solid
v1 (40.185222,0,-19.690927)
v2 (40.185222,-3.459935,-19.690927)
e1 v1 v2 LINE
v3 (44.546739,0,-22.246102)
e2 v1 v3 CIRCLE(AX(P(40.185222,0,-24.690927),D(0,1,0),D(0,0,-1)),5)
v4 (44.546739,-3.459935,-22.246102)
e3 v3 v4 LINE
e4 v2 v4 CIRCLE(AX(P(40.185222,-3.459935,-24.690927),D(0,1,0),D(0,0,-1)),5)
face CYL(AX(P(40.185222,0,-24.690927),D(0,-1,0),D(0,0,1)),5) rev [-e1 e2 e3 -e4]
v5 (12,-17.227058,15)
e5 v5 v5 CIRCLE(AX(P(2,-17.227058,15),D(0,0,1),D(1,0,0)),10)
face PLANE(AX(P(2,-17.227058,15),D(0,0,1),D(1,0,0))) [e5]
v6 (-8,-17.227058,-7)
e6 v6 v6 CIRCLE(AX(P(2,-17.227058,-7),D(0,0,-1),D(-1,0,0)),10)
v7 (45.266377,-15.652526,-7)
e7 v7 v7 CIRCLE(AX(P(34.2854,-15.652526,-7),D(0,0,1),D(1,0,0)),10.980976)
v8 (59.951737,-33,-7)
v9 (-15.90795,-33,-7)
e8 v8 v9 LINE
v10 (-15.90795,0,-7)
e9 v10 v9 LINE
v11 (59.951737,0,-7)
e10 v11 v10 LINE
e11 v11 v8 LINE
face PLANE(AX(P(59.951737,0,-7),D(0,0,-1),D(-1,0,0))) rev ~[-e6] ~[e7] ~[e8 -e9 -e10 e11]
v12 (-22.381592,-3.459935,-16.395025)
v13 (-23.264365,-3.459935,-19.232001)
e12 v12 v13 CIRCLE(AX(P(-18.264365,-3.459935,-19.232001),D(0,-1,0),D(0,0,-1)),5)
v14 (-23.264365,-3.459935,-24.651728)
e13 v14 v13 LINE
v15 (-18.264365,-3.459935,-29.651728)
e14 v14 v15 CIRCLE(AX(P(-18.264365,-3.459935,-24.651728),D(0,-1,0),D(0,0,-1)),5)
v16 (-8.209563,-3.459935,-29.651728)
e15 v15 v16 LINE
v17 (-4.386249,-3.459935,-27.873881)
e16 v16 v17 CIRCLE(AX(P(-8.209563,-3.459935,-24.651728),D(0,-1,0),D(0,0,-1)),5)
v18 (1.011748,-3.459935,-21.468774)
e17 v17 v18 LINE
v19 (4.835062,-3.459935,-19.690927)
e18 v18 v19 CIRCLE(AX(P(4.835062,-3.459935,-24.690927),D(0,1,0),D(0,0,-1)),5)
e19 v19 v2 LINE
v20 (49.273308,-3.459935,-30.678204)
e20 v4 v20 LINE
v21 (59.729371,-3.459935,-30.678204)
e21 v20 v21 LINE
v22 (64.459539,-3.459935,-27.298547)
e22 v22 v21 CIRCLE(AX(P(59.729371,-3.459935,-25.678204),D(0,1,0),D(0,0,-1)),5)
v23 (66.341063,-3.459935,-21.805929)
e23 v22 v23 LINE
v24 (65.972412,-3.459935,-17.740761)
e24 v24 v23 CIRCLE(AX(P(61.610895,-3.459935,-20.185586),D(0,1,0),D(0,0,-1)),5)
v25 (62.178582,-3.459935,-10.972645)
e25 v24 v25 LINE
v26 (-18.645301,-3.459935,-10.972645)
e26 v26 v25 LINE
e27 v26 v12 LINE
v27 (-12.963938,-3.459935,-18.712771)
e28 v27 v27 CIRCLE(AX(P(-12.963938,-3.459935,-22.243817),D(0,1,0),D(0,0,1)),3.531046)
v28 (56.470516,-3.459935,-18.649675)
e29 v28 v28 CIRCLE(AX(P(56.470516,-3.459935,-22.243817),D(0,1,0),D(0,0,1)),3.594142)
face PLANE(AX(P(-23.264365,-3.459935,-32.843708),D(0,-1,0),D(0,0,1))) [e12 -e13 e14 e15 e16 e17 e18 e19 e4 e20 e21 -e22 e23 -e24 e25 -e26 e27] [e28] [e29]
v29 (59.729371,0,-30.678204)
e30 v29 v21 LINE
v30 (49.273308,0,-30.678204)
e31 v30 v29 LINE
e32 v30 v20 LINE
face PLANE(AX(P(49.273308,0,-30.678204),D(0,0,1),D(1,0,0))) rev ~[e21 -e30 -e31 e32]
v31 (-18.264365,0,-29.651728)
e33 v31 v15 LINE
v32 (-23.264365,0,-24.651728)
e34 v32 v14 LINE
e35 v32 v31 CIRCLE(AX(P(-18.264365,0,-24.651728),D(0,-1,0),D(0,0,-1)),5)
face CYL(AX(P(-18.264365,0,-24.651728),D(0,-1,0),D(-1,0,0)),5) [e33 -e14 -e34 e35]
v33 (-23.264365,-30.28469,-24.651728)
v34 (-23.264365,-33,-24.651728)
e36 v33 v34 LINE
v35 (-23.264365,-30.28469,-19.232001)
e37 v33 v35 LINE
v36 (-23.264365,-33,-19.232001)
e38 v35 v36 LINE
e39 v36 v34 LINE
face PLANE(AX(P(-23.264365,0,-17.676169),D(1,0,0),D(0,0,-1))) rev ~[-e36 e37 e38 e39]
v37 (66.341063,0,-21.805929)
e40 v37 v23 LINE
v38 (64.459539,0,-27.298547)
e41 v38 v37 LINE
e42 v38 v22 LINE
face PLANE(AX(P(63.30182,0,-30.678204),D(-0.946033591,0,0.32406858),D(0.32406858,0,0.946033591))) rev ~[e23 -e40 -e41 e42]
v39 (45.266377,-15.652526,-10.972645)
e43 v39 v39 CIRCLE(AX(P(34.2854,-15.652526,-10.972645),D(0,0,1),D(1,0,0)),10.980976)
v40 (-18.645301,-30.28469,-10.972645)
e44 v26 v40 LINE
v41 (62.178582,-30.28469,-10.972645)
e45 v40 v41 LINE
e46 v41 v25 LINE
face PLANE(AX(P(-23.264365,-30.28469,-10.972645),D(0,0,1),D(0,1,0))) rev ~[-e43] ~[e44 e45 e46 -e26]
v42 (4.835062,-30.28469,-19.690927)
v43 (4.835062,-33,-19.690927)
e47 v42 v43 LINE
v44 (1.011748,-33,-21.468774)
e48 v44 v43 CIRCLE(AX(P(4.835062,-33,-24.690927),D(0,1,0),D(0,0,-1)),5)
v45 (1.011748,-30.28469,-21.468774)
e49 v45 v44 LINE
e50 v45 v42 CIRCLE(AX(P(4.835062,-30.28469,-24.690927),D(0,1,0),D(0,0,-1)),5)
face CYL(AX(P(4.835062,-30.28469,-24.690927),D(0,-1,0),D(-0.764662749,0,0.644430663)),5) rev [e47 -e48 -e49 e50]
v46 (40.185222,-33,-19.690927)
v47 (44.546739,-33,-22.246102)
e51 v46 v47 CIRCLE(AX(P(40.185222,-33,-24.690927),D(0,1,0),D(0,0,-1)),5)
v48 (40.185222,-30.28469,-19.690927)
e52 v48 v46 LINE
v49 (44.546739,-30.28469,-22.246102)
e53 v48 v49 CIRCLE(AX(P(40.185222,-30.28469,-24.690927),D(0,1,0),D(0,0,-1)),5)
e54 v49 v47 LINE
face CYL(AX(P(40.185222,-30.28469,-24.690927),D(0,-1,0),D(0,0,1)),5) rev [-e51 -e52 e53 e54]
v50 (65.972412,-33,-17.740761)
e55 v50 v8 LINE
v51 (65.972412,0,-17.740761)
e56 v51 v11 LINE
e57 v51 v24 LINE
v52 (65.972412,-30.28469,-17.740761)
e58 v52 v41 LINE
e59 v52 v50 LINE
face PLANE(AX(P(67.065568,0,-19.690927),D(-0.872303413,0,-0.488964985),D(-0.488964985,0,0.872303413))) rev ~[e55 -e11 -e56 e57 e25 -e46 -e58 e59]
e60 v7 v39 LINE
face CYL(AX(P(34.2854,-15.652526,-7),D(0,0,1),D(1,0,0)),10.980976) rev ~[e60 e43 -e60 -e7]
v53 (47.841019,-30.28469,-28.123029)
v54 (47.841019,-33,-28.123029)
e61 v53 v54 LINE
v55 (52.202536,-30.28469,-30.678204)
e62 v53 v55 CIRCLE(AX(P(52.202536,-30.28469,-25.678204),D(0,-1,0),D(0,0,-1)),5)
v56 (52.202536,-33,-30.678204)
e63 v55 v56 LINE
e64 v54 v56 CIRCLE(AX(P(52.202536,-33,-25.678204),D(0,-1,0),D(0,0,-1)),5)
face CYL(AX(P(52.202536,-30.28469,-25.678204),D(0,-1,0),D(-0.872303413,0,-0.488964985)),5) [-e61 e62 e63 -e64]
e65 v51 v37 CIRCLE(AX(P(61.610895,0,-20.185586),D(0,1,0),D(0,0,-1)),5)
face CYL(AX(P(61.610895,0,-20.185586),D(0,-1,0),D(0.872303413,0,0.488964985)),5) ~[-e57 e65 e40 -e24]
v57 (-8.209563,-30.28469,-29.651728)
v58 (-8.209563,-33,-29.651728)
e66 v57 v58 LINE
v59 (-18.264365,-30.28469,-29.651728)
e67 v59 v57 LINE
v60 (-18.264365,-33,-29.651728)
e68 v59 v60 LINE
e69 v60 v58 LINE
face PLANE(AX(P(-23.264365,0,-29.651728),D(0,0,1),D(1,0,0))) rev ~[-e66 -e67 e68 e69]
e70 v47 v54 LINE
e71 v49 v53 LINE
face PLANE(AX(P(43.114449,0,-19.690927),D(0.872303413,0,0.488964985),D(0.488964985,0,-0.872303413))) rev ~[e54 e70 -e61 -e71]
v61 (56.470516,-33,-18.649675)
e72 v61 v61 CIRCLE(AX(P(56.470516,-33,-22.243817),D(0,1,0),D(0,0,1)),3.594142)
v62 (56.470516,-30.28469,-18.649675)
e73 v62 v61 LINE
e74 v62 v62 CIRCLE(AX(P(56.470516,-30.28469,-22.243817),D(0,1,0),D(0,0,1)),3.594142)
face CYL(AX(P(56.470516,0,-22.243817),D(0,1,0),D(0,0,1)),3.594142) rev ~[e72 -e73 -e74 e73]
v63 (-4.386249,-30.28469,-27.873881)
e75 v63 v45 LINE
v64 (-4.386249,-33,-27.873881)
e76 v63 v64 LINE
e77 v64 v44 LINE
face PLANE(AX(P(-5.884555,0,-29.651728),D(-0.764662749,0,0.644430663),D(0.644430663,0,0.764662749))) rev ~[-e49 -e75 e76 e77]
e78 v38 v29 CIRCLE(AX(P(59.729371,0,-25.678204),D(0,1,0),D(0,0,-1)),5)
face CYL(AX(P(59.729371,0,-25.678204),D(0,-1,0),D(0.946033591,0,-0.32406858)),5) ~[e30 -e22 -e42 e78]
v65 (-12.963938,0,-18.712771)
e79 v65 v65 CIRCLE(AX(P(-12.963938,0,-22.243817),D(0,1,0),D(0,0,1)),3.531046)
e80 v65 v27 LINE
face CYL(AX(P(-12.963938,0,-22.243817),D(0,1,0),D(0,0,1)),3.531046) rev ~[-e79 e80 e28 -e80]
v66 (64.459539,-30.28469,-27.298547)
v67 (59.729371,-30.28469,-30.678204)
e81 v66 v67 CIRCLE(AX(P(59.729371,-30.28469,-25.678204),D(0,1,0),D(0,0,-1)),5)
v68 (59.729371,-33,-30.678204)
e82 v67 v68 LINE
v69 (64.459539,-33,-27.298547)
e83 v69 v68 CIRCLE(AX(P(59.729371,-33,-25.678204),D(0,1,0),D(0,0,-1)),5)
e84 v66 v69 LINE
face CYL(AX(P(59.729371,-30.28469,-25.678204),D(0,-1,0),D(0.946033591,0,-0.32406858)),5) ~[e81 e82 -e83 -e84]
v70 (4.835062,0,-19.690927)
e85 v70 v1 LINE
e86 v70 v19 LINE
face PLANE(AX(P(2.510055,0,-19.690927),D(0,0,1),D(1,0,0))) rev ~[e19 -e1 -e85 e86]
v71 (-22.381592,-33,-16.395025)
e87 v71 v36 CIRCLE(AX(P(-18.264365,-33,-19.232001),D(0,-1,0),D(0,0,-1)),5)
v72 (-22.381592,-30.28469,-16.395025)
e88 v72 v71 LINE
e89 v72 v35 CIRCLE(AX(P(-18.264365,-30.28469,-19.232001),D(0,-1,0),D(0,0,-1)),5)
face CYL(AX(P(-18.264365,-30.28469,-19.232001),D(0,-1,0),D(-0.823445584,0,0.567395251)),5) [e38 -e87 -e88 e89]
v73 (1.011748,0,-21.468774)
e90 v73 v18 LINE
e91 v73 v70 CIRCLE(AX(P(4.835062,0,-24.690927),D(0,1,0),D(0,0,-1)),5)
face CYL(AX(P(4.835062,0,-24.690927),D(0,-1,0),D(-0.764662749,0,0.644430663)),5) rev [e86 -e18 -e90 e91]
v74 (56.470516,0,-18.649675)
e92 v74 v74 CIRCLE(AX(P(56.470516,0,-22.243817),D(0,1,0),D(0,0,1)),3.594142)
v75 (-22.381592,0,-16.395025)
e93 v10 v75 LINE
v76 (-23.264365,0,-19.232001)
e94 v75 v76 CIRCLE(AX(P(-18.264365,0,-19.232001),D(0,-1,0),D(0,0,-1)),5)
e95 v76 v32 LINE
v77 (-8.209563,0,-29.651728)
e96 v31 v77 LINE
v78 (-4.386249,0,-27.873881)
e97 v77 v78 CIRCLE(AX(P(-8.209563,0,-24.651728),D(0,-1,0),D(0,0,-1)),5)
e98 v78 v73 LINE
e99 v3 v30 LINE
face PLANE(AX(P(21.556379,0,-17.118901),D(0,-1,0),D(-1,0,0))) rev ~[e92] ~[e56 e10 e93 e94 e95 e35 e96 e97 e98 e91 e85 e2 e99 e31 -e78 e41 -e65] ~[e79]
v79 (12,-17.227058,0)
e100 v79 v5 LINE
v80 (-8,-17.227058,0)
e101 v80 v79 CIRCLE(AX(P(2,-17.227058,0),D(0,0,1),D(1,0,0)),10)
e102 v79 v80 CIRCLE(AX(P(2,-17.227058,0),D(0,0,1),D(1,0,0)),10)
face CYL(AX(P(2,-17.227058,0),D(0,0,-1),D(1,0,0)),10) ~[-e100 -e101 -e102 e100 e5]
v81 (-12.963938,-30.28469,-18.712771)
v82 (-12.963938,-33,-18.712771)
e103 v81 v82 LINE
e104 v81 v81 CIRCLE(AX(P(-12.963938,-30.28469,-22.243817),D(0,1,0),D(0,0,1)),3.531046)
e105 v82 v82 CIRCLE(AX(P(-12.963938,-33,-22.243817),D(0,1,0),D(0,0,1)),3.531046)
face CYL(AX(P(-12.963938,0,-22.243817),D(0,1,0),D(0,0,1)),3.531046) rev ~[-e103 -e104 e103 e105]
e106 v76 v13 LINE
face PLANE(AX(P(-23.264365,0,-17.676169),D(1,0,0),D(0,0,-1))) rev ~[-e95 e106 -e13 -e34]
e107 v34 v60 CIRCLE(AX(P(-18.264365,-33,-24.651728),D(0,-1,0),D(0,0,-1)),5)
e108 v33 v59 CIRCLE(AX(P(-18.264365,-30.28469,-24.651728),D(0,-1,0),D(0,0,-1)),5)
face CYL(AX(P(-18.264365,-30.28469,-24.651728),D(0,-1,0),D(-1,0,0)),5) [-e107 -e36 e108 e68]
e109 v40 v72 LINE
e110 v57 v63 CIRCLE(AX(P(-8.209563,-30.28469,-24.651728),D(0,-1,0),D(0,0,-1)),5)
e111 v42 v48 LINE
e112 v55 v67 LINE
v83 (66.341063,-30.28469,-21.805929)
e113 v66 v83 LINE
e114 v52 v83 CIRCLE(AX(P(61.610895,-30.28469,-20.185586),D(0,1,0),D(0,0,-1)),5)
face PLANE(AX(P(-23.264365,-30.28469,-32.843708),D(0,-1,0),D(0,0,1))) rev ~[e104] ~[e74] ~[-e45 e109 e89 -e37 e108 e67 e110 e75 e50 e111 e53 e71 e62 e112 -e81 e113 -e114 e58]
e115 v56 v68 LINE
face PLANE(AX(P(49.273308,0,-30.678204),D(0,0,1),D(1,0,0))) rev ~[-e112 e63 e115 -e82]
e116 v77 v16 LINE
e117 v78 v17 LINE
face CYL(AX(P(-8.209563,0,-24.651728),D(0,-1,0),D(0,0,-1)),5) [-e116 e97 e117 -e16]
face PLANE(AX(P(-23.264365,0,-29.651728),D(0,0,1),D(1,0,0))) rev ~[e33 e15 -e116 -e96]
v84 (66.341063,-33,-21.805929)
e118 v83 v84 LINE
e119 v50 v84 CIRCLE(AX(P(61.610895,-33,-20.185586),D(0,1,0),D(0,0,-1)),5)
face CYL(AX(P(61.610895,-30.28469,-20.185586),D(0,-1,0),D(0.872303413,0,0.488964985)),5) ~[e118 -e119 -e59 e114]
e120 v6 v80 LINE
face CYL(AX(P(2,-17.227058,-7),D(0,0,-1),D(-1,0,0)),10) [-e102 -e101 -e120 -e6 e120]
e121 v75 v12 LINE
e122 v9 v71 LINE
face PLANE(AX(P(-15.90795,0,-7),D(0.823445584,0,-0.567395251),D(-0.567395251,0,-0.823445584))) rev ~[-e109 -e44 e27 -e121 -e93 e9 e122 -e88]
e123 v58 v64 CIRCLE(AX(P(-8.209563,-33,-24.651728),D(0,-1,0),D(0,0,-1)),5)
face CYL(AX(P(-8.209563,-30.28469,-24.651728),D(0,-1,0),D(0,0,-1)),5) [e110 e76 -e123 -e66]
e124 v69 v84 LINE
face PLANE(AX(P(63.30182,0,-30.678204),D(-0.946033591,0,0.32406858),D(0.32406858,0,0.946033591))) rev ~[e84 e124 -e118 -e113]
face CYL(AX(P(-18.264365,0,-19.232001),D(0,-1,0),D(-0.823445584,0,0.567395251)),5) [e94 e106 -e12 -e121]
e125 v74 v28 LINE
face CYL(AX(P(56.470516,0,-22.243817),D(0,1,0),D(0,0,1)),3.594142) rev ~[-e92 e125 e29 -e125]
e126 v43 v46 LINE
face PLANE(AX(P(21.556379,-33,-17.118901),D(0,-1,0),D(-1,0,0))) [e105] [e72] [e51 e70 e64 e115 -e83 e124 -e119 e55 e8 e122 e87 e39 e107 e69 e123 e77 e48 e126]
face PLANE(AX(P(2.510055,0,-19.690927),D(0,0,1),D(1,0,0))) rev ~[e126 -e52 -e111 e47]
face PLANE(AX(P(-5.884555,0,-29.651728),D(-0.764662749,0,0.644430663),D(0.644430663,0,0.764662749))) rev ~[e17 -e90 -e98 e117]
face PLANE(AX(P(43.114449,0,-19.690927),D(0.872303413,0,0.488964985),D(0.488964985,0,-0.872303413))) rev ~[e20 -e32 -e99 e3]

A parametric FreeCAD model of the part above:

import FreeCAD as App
import Part
import Sketcher
Q = App.Units.Quantity


def edges_at(feature, points):
    """Names of the edges that pass closest to the given points."""
    edges = feature.Shape.Edges
    near = lambda p: min(range(len(edges)), key=lambda i: edges[i].distToShape(Part.Vertex(*p))[0])
    return sorted({f"Edge{near(p) + 1}" for p in points})


def add_polygon(sketch, points):
    """Adds a closed chain of lines whose ends are joined by coincident constraints."""
    first, n = sketch.GeometryCount, len(points)
    for a, b in zip(points, points[1:] + points[:1]):
        sketch.addGeometry(Part.LineSegment(App.Vector(*a, 0), App.Vector(*b, 0)), False)
    for i in range(n):
        sketch.addConstraint(Sketcher.Constraint("Coincident", first + i, 2, first + (i + 1) % n, 1))

doc = App.newDocument("Part")
params = doc.addObject("Spreadsheet::Sheet", "Params")
for row, (alias, value) in enumerate([
    ("sketch1_diameter", "20 mm"),
    ("pad1_length", "15 mm"),
    ("sketch2_diameter", "20 mm"),
    ("pad2_length", "7 mm"),
    ("pad3_length", "33 mm"),
    ("fillet_radius", "5 mm"),
], start=1):
    params.set(f"A{row}", alias)
    params.set(f"B{row}", "=" + value)
    params.setAlias(f"B{row}", alias)

body = doc.addObject("PartDesign::Body", "Body")

sketch1 = doc.addObject("Sketcher::SketchObject", "Sketch")
body.addObject(sketch1)
sketch1.AttachmentSupport = (doc.XY_Plane, [""])
sketch1.MapMode = "FlatFace"
sketch1.addGeometry(Part.Circle(App.Vector(2, -17, 0), App.Vector(0, 0, 1), 10), False)
sketch1.addConstraint([
    Sketcher.Constraint("Diameter", 0, Q("20 mm")),
    Sketcher.Constraint("DistanceX", -1, 1, 0, 3, Q("2 mm")),
    Sketcher.Constraint("DistanceY", 0, 3, -1, 1, Q("17.227058 mm")),
])
sketch1.setExpression("Constraints[0]", "Params.sketch1_diameter")
pad1 = doc.addObject("PartDesign::Pad", "Pad")
body.addObject(pad1)
pad1.Profile = sketch1
pad1.setExpression("Length", "Params.pad1_length")

sketch2 = doc.addObject("Sketcher::SketchObject", "Sketch001")
body.addObject(sketch2)
sketch2.AttachmentSupport = (doc.XY_Plane, [""])
sketch2.MapMode = "FlatFace"
sketch2.AttachmentOffset = App.Placement(App.Vector(0, 0, -7), App.Rotation())
sketch2.addGeometry(Part.Circle(App.Vector(2, -17, 0), App.Vector(0, 0, 1), 10), False)
sketch2.addConstraint([
    Sketcher.Constraint("Diameter", 0, Q("20 mm")),
    Sketcher.Constraint("DistanceX", -1, 1, 0, 3, Q("2 mm")),
    Sketcher.Constraint("DistanceY", 0, 3, -1, 1, Q("17.227058 mm")),
])
sketch2.setExpression("Constraints[0]", "Params.sketch2_diameter")
pad2 = doc.addObject("PartDesign::Pad", "Pad001")
body.addObject(pad2)
pad2.Profile = sketch2
pad2.setExpression("Length", "Params.pad2_length")

sketch3 = doc.addObject("Sketcher::SketchObject", "Sketch002")
body.addObject(sketch3)
sketch3.AttachmentSupport = (doc.XZ_Plane, [""])
sketch3.MapMode = "FlatFace"
add_polygon(sketch3, [(-23, -18), (-16, -7), (60, -7), (67, -20), (63, -31), (49, -31), (43, -20), (3, -20), (-6, -30), (-23, -30)])
sketch3.addConstraint([
    Sketcher.Constraint("Horizontal", 1),
    Sketcher.Constraint("Horizontal", 4),
    Sketcher.Constraint("Horizontal", 6),
    Sketcher.Constraint("Horizontal", 8),
    Sketcher.Constraint("Vertical", 9),
    Sketcher.Constraint("Parallel", 2, 5),
    Sketcher.Constraint("Horizontal", 2, 2, 5, 2),
    Sketcher.Constraint("DistanceY", 0, 2, -1, 1, Q("7 mm")),
    Sketcher.Constraint("DistanceX", 8, 2, 8, 1, Q("17.379809 mm")),
    Sketcher.Constraint("DistanceY", 9, 1, 9, 2, Q("11.975559 mm")),
    Sketcher.Constraint("DistanceX", 0, 2, 5, 2, Q("59.022399 mm")),
    Sketcher.Constraint("DistanceY", 7, 2, 6, 2, Q("9.9608 mm")),
    Sketcher.Constraint("Distance", 0, Q("12.965239 mm")),
    Sketcher.Constraint("DistanceX", 1, 1, 1, 2, Q("75.859686 mm")),
    Sketcher.Constraint("DistanceX", 4, 2, 4, 1, Q("14.028512 mm")),
    Sketcher.Constraint("DistanceX", 6, 2, 6, 1, Q("40.604395 mm")),
    Sketcher.Constraint("DistanceX", 0, 2, -1, 1, Q("15.90795 mm")),
    Sketcher.Constraint("DistanceX", -1, 1, 3, 2, Q("63.30182 mm")),
    Sketcher.Constraint("DistanceY", 9, 2, -1, 1, Q("17.676169 mm")),
    Sketcher.Constraint("DistanceX", 1, 2, 2, 2, Q("7.113831 mm")),
])
pad3 = doc.addObject("PartDesign::Pad", "Pad002")
body.addObject(pad3)
pad3.Profile = sketch3
pad3.setExpression("Length", "Params.pad3_length")

sketch4 = doc.addObject("Sketcher::SketchObject", "Sketch003")
body.addObject(sketch4)
sketch4.AttachmentSupport = (doc.YZ_Plane, [""])
sketch4.MapMode = "FlatFace"
sketch4.AttachmentOffset = App.Placement(App.Vector(0, 0, -23.264365), App.Rotation())
add_polygon(sketch4, [(-3, -33), (-30, -33), (-30, -11), (-3, -11)])
sketch4.addConstraint([
    Sketcher.Constraint("Horizontal", 0),
    Sketcher.Constraint("Vertical", 1),
    Sketcher.Constraint("Horizontal", 2),
    Sketcher.Constraint("Vertical", 3),
    Sketcher.Constraint("DistanceX", 0, 2, 0, 1, Q("26.824754 mm")),
    Sketcher.Constraint("DistanceY", 1, 1, 1, 2, Q("21.871063 mm")),
    Sketcher.Constraint("DistanceX", 0, 2, -1, 1, Q("30.28469 mm")),
    Sketcher.Constraint("DistanceY", 0, 2, -1, 1, Q("32.843708 mm")),
])
pocket1 = doc.addObject("PartDesign::Pocket", "Pocket")
body.addObject(pocket1)
pocket1.Profile = sketch4
pocket1.Type = "ThroughAll"
pocket1.Reversed = True

sketch5 = doc.addObject("Sketcher::SketchObject", "Sketch004")
body.addObject(sketch5)
sketch5.AttachmentSupport = (doc.XZ_Plane, [""])
sketch5.MapMode = "FlatFace"
sketch5.addGeometry([
    Part.Circle(App.Vector(-13, -22.2, 0), App.Vector(0, 0, 1), 3.5),
    Part.Circle(App.Vector(56.5, -22.2, 0), App.Vector(0, 0, 1), 3.6),
], False)
sketch5.addConstraint([
    Sketcher.Constraint("Horizontal", 0, 3, 1, 3),
    Sketcher.Constraint("Diameter", 0, Q("7.062092 mm")),
    Sketcher.Constraint("Diameter", 1, Q("7.188285 mm")),
    Sketcher.Constraint("DistanceX", 0, 3, -1, 1, Q("12.963938 mm")),
    Sketcher.Constraint("DistanceY", 0, 3, -1, 1, Q("22.243817 mm")),
    Sketcher.Constraint("DistanceX", -1, 1, 1, 3, Q("56.470516 mm")),
])
pocket2 = doc.addObject("PartDesign::Pocket", "Pocket001")
body.addObject(pocket2)
pocket2.Profile = sketch5
pocket2.Type = "ThroughAll"
pocket2.Reversed = True
doc.recompute()

fillet = doc.addObject("PartDesign::Fillet", "Fillet")
body.addObject(fillet)
fillet.Base = (pocket2, edges_at(pocket2, [
    (-23.264, -31.642, -17.676),
    (-23.264, -31.642, -29.652),
    (-5.885, -31.642, -29.652),
    (2.51, -31.642, -19.691),
    (43.114, -31.642, -19.691),
    (49.273, -31.642, -30.678),
    (63.302, -31.642, -30.678),
    (67.066, -31.642, -19.691),
    (67.066, -1.73, -19.691),
    (63.302, -1.73, -30.678),
    (43.114, -1.73, -19.691),
    (2.51, -1.73, -19.691),
    (-5.885, -1.73, -29.652),
    (-23.264, -1.73, -29.652),
    (-23.264, -1.73, -17.676),
]))
fillet.setExpression("Radius", "Params.fillet_radius")

sketch6 = doc.addObject("Sketcher::SketchObject", "Sketch005")
body.addObject(sketch6)
sketch6.AttachmentSupport = (doc.XY_Plane, [""])
sketch6.MapMode = "FlatFace"
sketch6.AttachmentOffset = App.Placement(App.Vector(0, 0, -7), App.Rotation())
sketch6.addGeometry(Part.Circle(App.Vector(34, -16, 0), App.Vector(0, 0, 1), 11), False)
sketch6.addConstraint([
    Sketcher.Constraint("Diameter", 0, Q("21.961953 mm")),
    Sketcher.Constraint("DistanceX", -1, 1, 0, 3, Q("34.2854 mm")),
    Sketcher.Constraint("DistanceY", 0, 3, -1, 1, Q("15.652526 mm")),
])
pocket3 = doc.addObject("PartDesign::Pocket", "Pocket002")
body.addObject(pocket3)
pocket3.Profile = sketch6
pocket3.Type = "ThroughAll"

doc.recompute()
